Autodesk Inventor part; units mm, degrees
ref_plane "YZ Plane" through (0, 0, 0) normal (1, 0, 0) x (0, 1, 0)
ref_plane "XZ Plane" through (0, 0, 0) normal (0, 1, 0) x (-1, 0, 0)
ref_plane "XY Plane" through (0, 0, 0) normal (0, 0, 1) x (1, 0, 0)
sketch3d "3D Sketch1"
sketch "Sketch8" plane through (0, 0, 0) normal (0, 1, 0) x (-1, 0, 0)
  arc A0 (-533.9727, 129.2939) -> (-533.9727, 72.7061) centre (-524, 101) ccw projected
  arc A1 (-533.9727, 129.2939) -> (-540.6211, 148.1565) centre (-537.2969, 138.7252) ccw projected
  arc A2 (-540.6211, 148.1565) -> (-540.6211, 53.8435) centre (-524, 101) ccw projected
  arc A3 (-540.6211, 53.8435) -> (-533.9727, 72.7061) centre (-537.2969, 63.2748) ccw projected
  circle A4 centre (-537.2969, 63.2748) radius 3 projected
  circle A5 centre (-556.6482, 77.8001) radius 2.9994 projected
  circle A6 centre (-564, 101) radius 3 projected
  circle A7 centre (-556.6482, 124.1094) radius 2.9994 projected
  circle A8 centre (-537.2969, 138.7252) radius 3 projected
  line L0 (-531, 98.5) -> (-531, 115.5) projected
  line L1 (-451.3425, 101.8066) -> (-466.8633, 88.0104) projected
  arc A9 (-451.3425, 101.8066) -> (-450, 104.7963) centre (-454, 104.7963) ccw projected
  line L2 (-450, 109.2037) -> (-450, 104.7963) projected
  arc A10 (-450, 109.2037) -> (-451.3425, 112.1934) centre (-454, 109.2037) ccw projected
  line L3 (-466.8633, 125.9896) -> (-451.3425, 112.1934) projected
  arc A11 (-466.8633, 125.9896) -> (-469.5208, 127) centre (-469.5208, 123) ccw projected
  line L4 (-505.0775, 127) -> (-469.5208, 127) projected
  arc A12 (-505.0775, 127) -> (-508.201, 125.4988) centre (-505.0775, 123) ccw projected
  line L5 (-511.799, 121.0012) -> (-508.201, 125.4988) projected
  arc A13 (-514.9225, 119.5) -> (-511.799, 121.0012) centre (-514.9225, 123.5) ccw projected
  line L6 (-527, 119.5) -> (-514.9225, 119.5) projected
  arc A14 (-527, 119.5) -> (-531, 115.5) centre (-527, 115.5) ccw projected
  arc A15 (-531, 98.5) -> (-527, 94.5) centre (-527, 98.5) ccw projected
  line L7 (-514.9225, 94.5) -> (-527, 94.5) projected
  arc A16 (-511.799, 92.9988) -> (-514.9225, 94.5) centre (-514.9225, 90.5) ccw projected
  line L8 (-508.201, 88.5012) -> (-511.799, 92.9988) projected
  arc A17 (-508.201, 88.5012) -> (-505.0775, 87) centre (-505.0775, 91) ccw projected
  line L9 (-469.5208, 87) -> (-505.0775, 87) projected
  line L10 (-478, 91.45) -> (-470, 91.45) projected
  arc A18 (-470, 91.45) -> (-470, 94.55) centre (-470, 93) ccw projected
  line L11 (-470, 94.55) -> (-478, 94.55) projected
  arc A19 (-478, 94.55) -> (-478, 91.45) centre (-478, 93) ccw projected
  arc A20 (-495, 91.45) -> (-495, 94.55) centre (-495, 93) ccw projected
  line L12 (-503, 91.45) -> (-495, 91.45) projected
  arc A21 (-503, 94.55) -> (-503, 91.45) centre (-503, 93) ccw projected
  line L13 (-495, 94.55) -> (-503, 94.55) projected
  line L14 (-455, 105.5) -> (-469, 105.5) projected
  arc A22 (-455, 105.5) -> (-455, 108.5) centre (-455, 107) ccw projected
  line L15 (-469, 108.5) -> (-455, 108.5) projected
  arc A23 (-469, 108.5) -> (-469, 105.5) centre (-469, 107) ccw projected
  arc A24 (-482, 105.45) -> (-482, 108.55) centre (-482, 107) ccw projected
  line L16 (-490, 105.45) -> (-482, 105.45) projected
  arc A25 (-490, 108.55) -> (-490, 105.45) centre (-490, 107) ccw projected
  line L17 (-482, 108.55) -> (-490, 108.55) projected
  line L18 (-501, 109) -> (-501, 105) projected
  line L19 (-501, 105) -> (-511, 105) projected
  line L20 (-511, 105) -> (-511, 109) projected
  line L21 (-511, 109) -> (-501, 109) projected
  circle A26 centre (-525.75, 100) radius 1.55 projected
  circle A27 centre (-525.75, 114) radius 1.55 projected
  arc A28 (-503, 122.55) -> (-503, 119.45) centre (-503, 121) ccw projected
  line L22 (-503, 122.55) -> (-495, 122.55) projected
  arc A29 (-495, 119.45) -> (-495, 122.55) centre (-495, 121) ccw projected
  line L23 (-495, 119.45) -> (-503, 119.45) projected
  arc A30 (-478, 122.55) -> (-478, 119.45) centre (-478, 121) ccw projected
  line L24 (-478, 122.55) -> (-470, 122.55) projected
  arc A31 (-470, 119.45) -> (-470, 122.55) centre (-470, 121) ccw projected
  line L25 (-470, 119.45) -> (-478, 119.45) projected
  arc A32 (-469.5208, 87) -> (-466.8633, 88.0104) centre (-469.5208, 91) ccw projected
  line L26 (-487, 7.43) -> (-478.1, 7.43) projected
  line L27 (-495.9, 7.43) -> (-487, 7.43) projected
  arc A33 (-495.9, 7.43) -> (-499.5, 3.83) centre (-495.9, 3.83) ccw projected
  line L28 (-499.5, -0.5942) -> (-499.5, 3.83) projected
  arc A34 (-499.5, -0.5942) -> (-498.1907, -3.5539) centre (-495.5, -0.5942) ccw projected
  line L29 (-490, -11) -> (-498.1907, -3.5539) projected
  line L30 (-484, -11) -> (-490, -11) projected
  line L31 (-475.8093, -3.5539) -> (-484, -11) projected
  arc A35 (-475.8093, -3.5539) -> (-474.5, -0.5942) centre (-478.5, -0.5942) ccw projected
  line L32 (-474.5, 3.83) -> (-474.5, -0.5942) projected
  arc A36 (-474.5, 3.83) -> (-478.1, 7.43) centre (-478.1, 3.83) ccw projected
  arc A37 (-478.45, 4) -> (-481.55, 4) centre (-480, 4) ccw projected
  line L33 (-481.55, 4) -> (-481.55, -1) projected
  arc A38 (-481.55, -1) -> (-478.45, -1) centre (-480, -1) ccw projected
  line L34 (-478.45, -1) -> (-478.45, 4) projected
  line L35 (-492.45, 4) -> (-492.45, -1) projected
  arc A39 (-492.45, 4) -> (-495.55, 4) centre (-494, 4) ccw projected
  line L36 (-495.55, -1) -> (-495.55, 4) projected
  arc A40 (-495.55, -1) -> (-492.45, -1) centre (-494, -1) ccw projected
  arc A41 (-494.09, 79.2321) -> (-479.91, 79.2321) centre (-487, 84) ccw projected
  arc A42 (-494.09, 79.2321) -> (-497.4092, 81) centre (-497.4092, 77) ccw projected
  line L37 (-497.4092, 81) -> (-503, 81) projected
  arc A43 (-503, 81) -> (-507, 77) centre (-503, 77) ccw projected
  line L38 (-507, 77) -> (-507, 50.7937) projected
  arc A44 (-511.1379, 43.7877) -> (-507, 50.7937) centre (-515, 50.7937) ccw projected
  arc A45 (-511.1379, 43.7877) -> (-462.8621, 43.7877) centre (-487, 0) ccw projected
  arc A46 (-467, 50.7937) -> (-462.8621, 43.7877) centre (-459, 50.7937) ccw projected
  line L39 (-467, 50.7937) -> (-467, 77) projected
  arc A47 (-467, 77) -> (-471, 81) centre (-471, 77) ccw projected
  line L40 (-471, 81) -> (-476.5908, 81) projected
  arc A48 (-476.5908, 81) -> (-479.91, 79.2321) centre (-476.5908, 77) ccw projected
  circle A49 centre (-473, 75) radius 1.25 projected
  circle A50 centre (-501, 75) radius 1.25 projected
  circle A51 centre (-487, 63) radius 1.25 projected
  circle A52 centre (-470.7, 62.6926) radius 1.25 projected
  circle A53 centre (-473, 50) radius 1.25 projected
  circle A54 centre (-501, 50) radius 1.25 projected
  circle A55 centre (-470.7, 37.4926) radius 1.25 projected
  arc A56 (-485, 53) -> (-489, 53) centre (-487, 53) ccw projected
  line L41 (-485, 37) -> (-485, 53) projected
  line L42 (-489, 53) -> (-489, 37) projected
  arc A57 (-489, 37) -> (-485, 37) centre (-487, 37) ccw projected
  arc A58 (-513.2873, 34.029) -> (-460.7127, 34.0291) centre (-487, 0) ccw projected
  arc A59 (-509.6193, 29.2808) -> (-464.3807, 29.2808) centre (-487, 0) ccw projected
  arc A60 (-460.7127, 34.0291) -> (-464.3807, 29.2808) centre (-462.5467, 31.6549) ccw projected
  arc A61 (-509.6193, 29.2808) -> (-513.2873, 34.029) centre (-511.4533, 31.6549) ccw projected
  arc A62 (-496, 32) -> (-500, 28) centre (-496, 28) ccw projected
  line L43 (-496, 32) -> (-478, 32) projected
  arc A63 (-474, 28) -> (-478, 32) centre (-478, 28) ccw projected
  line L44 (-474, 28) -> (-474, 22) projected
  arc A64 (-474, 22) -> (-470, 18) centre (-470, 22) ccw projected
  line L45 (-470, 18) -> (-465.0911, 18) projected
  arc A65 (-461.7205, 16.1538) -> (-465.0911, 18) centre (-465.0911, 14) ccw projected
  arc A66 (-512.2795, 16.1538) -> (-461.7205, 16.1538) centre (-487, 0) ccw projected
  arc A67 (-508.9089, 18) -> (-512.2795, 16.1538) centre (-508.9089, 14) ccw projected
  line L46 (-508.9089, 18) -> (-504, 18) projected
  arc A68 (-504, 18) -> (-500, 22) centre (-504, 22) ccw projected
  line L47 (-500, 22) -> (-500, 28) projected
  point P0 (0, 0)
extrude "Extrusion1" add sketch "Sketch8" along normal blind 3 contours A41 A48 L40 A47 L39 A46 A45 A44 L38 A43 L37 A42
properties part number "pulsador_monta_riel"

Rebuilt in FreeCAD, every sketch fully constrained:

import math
import FreeCAD as App
import Part
import Sketcher
from FreeCAD import Vector
Q = App.Units.Quantity

doc = App.newDocument("Part")
body = doc.addObject("PartDesign::Body", "Body")

sketch1 = body.newObject("Sketcher::SketchObject", "Sketch")
sketch1.AttachmentSupport = (doc.getObject("XZ_Plane"), [""])
sketch1.MapMode = "FlatFace"
sketch1.addGeometry(Part.ArcOfCircle(Part.Circle(Vector(487, 84, 0), Vector(0, 0, 1), 8.544061), math.radians(-146.079864), math.radians(-33.920136)), False)
sketch1.addGeometry(Part.ArcOfCircle(Part.Circle(Vector(497.4092, 77, 0), Vector(0, 0, 1), 3.99992), math.radians(90), math.radians(146.079905)), False)
sketch1.addGeometry(Part.LineSegment(Vector(497.4092, 81, 0), Vector(503, 81, 0)), False)
sketch1.addGeometry(Part.ArcOfCircle(Part.Circle(Vector(503, 77, 0), Vector(0, 0, 1), 4), math.radians(0), math.radians(90)), False)
sketch1.addGeometry(Part.LineSegment(Vector(507, 77, 0), Vector(507, 50.7937, 0)), False)
sketch1.addGeometry(Part.ArcOfCircle(Part.Circle(Vector(515, 50.7937, 0), Vector(0, 0, 1), 7.999991), math.radians(180), math.radians(241.133982)), False)
sketch1.addGeometry(Part.ArcOfCircle(Part.Circle(Vector(487, 0, 0), Vector(0, 0, 1), 50.000009), math.radians(118.865681), math.radians(421.134319)), False)
sketch1.addGeometry(Part.ArcOfCircle(Part.Circle(Vector(459, 50.7937, 0), Vector(0, 0, 1), 8), math.radians(-61.133982), math.radians(0)), False)
sketch1.addGeometry(Part.LineSegment(Vector(467, 50.7937, 0), Vector(467, 77, 0)), False)
sketch1.addGeometry(Part.ArcOfCircle(Part.Circle(Vector(471, 77, 0), Vector(0, 0, 1), 4), math.radians(90), math.radians(180)), False)
sketch1.addGeometry(Part.LineSegment(Vector(471, 81, 0), Vector(476.5908, 81, 0)), False)
sketch1.addGeometry(Part.ArcOfCircle(Part.Circle(Vector(476.5908, 77, 0), Vector(0, 0, 1), 4), math.radians(33.920095), math.radians(90)), False)
sketch1.addGeometry(Part.ArcOfCircle(Part.Circle(Vector(487, 0, 0), Vector(0, 0, 1), 42.999942), math.radians(127.685897), math.radians(412.314022)), False)
sketch1.addGeometry(Part.ArcOfCircle(Part.Circle(Vector(511.4533, 31.6549, 0), Vector(0, 0, 1), 2.999984), math.radians(52.313797), math.radians(232.313797)), False)
sketch1.addGeometry(Part.ArcOfCircle(Part.Circle(Vector(487, 0, 0), Vector(0, 0, 1), 36.999973), math.radians(127.685942), math.radians(412.314058)), False)
sketch1.addGeometry(Part.ArcOfCircle(Part.Circle(Vector(462.5467, 31.6549, 0), Vector(0, 0, 1), 3.000064), math.radians(-52.313797), math.radians(127.685036)), False)
sketch1.addGeometry(Part.ArcOfCircle(Part.Circle(Vector(496, 28, 0), Vector(0, 0, 1), 4), math.radians(0), math.radians(90)), False)
sketch1.addGeometry(Part.LineSegment(Vector(496, 32, 0), Vector(478, 32, 0)), False)
sketch1.addGeometry(Part.ArcOfCircle(Part.Circle(Vector(478, 28, 0), Vector(0, 0, 1), 4), math.radians(90), math.radians(180)), False)
sketch1.addGeometry(Part.LineSegment(Vector(474, 28, 0), Vector(474, 22, 0)), False)
sketch1.addGeometry(Part.ArcOfCircle(Part.Circle(Vector(470, 22, 0), Vector(0, 0, 1), 4), math.radians(-90), math.radians(0)), False)
sketch1.addGeometry(Part.LineSegment(Vector(470, 18, 0), Vector(465.0911, 18, 0)), False)
sketch1.addGeometry(Part.ArcOfCircle(Part.Circle(Vector(465.0911, 14, 0), Vector(0, 0, 1), 3.999975), math.radians(90), math.radians(147.421584)), False)
sketch1.addGeometry(Part.ArcOfCircle(Part.Circle(Vector(487, 0, 0), Vector(0, 0, 1), 29.999973), math.radians(147.421101), math.radians(392.578899)), False)
sketch1.addGeometry(Part.ArcOfCircle(Part.Circle(Vector(508.9089, 14, 0), Vector(0, 0, 1), 4), math.radians(32.578416), math.radians(90)), False)
sketch1.addGeometry(Part.LineSegment(Vector(508.9089, 18, 0), Vector(504, 18, 0)), False)
sketch1.addGeometry(Part.ArcOfCircle(Part.Circle(Vector(504, 22, 0), Vector(0, 0, 1), 4), math.radians(180), math.radians(270)), False)
sketch1.addGeometry(Part.LineSegment(Vector(500, 22, 0), Vector(500, 28, 0)), False)
sketch1.addGeometry(Part.ArcOfCircle(Part.Circle(Vector(487, 53, 0), Vector(0, 0, 1), 2), math.radians(0), math.radians(180)), False)
sketch1.addGeometry(Part.LineSegment(Vector(485, 53, 0), Vector(485, 37, 0)), False)
sketch1.addGeometry(Part.ArcOfCircle(Part.Circle(Vector(487, 37, 0), Vector(0, 0, 1), 2), math.radians(180), math.radians(360)), False)
sketch1.addGeometry(Part.LineSegment(Vector(489, 37, 0), Vector(489, 53, 0)), False)
sketch1.addGeometry(Part.Circle(Vector(470.7, 37.4926, 0), Vector(0, 0, 1), 1.25), False)
sketch1.addGeometry(Part.Circle(Vector(501, 50, 0), Vector(0, 0, 1), 1.25), False)
sketch1.addGeometry(Part.Circle(Vector(473, 50, 0), Vector(0, 0, 1), 1.25), False)
sketch1.addGeometry(Part.Circle(Vector(487, 63, 0), Vector(0, 0, 1), 1.25), False)
sketch1.addGeometry(Part.Circle(Vector(501, 75, 0), Vector(0, 0, 1), 1.25), False)
sketch1.addGeometry(Part.Circle(Vector(473, 75, 0), Vector(0, 0, 1), 1.25), False)
sketch1.addGeometry(Part.Circle(Vector(470.7, 62.6926, 0), Vector(0, 0, 1), 1.25), False)
sketch1.addConstraint(Sketcher.Constraint("Tangent", 0, 2, 1, 2))
sketch1.addConstraint(Sketcher.Constraint("Tangent", 1, 1, 2, 1))
sketch1.addConstraint(Sketcher.Constraint("Tangent", 2, 2, 3, 2))
sketch1.addConstraint(Sketcher.Constraint("Tangent", 3, 1, 4, 1))
sketch1.addConstraint(Sketcher.Constraint("Tangent", 4, 2, 5, 1))
sketch1.addConstraint(Sketcher.Constraint("Tangent", 5, 2, 6, 2))
sketch1.addConstraint(Sketcher.Constraint("Tangent", 6, 1, 7, 1))
sketch1.addConstraint(Sketcher.Constraint("Tangent", 7, 2, 8, 1))
sketch1.addConstraint(Sketcher.Constraint("Tangent", 8, 2, 9, 2))
sketch1.addConstraint(Sketcher.Constraint("Tangent", 9, 1, 10, 1))
sketch1.addConstraint(Sketcher.Constraint("Tangent", 10, 2, 11, 2))
sketch1.addConstraint(Sketcher.Constraint("Tangent", 11, 1, 0, 1))
sketch1.addConstraint(Sketcher.Constraint("Tangent", 12, 2, 13, 1))
sketch1.addConstraint(Sketcher.Constraint("Tangent", 13, 2, 14, 2))
sketch1.addConstraint(Sketcher.Constraint("Tangent", 14, 1, 15, 1))
sketch1.addConstraint(Sketcher.Constraint("Tangent", 15, 2, 12, 1))
sketch1.addConstraint(Sketcher.Constraint("Tangent", 16, 2, 17, 1))
sketch1.addConstraint(Sketcher.Constraint("Tangent", 17, 2, 18, 1))
sketch1.addConstraint(Sketcher.Constraint("Tangent", 18, 2, 19, 1))
sketch1.addConstraint(Sketcher.Constraint("Tangent", 19, 2, 20, 2))
sketch1.addConstraint(Sketcher.Constraint("Tangent", 20, 1, 21, 1))
sketch1.addConstraint(Sketcher.Constraint("Tangent", 21, 2, 22, 1))
sketch1.addConstraint(Sketcher.Constraint("Tangent", 22, 2, 23, 1))
sketch1.addConstraint(Sketcher.Constraint("Tangent", 23, 2, 24, 1))
sketch1.addConstraint(Sketcher.Constraint("Tangent", 24, 2, 25, 1))
sketch1.addConstraint(Sketcher.Constraint("Tangent", 25, 2, 26, 2))
sketch1.addConstraint(Sketcher.Constraint("Tangent", 26, 1, 27, 1))
sketch1.addConstraint(Sketcher.Constraint("Tangent", 27, 2, 16, 1))
sketch1.addConstraint(Sketcher.Constraint("Tangent", 28, 2, 29, 1))
sketch1.addConstraint(Sketcher.Constraint("Tangent", 29, 2, 30, 1))
sketch1.addConstraint(Sketcher.Constraint("Tangent", 30, 2, 31, 1))
sketch1.addConstraint(Sketcher.Constraint("Tangent", 31, 2, 28, 1))
sketch1.addConstraint(Sketcher.Constraint("Horizontal", 2))
sketch1.addConstraint(Sketcher.Constraint("Vertical", 4))
sketch1.addConstraint(Sketcher.Constraint("Vertical", 8))
sketch1.addConstraint(Sketcher.Constraint("Horizontal", 10))
sketch1.addConstraint(Sketcher.Constraint("Horizontal", 17))
sketch1.addConstraint(Sketcher.Constraint("Vertical", 19))
sketch1.addConstraint(Sketcher.Constraint("Horizontal", 21))
sketch1.addConstraint(Sketcher.Constraint("Horizontal", 25))
sketch1.addConstraint(Sketcher.Constraint("Vertical", 27))
sketch1.addConstraint(Sketcher.Constraint("Vertical", 29))
sketch1.addConstraint(Sketcher.Constraint("Vertical", 31))
sketch1.addConstraint(Sketcher.Constraint("Coincident", 12, 3, 6, 3))
sketch1.addConstraint(Sketcher.Constraint("Coincident", 14, 3, 6, 3))
sketch1.addConstraint(Sketcher.Constraint("Coincident", 23, 3, 6, 3))
sketch1.addConstraint(Sketcher.Constraint("Equal", 1, 3))
sketch1.addConstraint(Sketcher.Constraint("Equal", 5, 7))
sketch1.addConstraint(Sketcher.Constraint("Equal", 3, 9))
sketch1.addConstraint(Sketcher.Constraint("Equal", 9, 11))
sketch1.addConstraint(Sketcher.Constraint("Equal", 11, 16))
sketch1.addConstraint(Sketcher.Constraint("Equal", 16, 18))
sketch1.addConstraint(Sketcher.Constraint("Equal", 18, 20))
sketch1.addConstraint(Sketcher.Constraint("Equal", 20, 22))
sketch1.addConstraint(Sketcher.Constraint("Equal", 22, 24))
sketch1.addConstraint(Sketcher.Constraint("Equal", 24, 26))
sketch1.addConstraint(Sketcher.Constraint("Equal", 32, 33))
sketch1.addConstraint(Sketcher.Constraint("Equal", 33, 34))
sketch1.addConstraint(Sketcher.Constraint("Equal", 34, 35))
sketch1.addConstraint(Sketcher.Constraint("Equal", 35, 36))
sketch1.addConstraint(Sketcher.Constraint("Equal", 36, 37))
sketch1.addConstraint(Sketcher.Constraint("Equal", 37, 38))
sketch1.addConstraint(Sketcher.Constraint("PointOnObject", 6, 3, -1))
sketch1.addConstraint(Sketcher.Constraint("Horizontal", 5, 3, 7, 3))
sketch1.addConstraint(Sketcher.Constraint("Horizontal", 3, 3, 9, 3))
sketch1.addConstraint(Sketcher.Constraint("Horizontal", 13, 3, 15, 3))
sketch1.addConstraint(Sketcher.Constraint("Horizontal", 22, 3, 24, 3))
sketch1.addConstraint(Sketcher.Constraint("Horizontal", 33, 3, 34, 3))
sketch1.addConstraint(Sketcher.Constraint("Horizontal", 36, 3, 37, 3))
sketch1.addConstraint(Sketcher.Constraint("Vertical", 0, 3, 6, 3))
sketch1.addConstraint(Sketcher.Constraint("Vertical", 23, 3, 28, 3))
sketch1.addConstraint(Sketcher.Constraint("Vertical", 30, 3, 35, 3))
sketch1.addConstraint(Sketcher.Constraint("Vertical", 33, 3, 36, 3))
sketch1.addConstraint(Sketcher.Constraint("Vertical", 34, 3, 37, 3))
sketch1.addConstraint(Sketcher.Constraint("Vertical", 32, 3, 38, 3))
sketch1.addConstraint(Sketcher.Constraint("Equal", 21, 25))
sketch1.addConstraint(Sketcher.Constraint("Radius", 1, Q("4 mm")))
sketch1.addConstraint(Sketcher.Constraint("Radius", 5, Q("8 mm")))
sketch1.addConstraint(Sketcher.Constraint("Radius", 6, Q("50 mm")))
sketch1.addConstraint(Sketcher.Constraint("Radius", 12, Q("43 mm")))
sketch1.addConstraint(Sketcher.Constraint("Radius", 13, Q("3 mm")))
sketch1.addConstraint(Sketcher.Constraint("Radius", 23, Q("30 mm")))
sketch1.addConstraint(Sketcher.Constraint("Radius", 28, Q("2 mm")))
sketch1.addConstraint(Sketcher.Constraint("Diameter", 32, Q("2.5 mm")))
sketch1.addConstraint(Sketcher.Constraint("DistanceX", 17, 2, 17, 1, Q("18 mm")))
sketch1.addConstraint(Sketcher.Constraint("DistanceY", 19, 2, 19, 1, Q("6 mm")))
sketch1.addConstraint(Sketcher.Constraint("DistanceY", 29, 2, 29, 1, Q("16 mm")))
sketch1.addConstraint(Sketcher.Constraint("DistanceX", -1, 1, 0, 3, Q("487 mm")))
sketch1.addConstraint(Sketcher.Constraint("DistanceY", -1, 1, 0, 3, Q("84 mm")))
sketch1.addConstraint(Sketcher.Constraint("DistanceY", -1, 1, 1, 3, Q("77 mm")))
sketch1.addConstraint(Sketcher.Constraint("DistanceX", -1, 1, 3, 3, Q("503 mm")))
sketch1.addConstraint(Sketcher.Constraint("DistanceY", -1, 1, 16, 3, Q("28 mm")))
sketch1.addConstraint(Sketcher.Constraint("DistanceY", -1, 1, 28, 3, Q("53 mm")))
sketch1.addConstraint(Sketcher.Constraint("DistanceX", -1, 1, 33, 3, Q("501 mm")))
sketch1.addConstraint(Sketcher.Constraint("DistanceY", -1, 1, 33, 3, Q("50 mm")))
sketch1.addConstraint(Sketcher.Constraint("DistanceX", -1, 1, 34, 3, Q("473 mm")))
sketch1.addConstraint(Sketcher.Constraint("DistanceY", -1, 1, 35, 3, Q("63 mm")))
sketch1.addConstraint(Sketcher.Constraint("DistanceY", -1, 1, 36, 3, Q("75 mm")))
sketch1.addConstraint(Sketcher.Constraint("Radius", 0, Q("8.544 mm")))
sketch1.addConstraint(Sketcher.Constraint("DistanceX", -1, 1, 32, 3, Q("470.7 mm")))
sketch1.addConstraint(Sketcher.Constraint("DistanceY", -1, 1, 13, 3, Q("31.655 mm")))
sketch1.addConstraint(Sketcher.Constraint("DistanceY", 32, 3, 7, 3, Q("13.301 mm")))
sketch1.addConstraint(Sketcher.Constraint("DistanceY", 6, 1, 38, 3, Q("18.905 mm")))
pad1 = body.newObject("PartDesign::Pad", "Pad")
pad1.Profile = sketch1
pad1.Length = 3
pad1.Reversed = True

doc.recompute()
